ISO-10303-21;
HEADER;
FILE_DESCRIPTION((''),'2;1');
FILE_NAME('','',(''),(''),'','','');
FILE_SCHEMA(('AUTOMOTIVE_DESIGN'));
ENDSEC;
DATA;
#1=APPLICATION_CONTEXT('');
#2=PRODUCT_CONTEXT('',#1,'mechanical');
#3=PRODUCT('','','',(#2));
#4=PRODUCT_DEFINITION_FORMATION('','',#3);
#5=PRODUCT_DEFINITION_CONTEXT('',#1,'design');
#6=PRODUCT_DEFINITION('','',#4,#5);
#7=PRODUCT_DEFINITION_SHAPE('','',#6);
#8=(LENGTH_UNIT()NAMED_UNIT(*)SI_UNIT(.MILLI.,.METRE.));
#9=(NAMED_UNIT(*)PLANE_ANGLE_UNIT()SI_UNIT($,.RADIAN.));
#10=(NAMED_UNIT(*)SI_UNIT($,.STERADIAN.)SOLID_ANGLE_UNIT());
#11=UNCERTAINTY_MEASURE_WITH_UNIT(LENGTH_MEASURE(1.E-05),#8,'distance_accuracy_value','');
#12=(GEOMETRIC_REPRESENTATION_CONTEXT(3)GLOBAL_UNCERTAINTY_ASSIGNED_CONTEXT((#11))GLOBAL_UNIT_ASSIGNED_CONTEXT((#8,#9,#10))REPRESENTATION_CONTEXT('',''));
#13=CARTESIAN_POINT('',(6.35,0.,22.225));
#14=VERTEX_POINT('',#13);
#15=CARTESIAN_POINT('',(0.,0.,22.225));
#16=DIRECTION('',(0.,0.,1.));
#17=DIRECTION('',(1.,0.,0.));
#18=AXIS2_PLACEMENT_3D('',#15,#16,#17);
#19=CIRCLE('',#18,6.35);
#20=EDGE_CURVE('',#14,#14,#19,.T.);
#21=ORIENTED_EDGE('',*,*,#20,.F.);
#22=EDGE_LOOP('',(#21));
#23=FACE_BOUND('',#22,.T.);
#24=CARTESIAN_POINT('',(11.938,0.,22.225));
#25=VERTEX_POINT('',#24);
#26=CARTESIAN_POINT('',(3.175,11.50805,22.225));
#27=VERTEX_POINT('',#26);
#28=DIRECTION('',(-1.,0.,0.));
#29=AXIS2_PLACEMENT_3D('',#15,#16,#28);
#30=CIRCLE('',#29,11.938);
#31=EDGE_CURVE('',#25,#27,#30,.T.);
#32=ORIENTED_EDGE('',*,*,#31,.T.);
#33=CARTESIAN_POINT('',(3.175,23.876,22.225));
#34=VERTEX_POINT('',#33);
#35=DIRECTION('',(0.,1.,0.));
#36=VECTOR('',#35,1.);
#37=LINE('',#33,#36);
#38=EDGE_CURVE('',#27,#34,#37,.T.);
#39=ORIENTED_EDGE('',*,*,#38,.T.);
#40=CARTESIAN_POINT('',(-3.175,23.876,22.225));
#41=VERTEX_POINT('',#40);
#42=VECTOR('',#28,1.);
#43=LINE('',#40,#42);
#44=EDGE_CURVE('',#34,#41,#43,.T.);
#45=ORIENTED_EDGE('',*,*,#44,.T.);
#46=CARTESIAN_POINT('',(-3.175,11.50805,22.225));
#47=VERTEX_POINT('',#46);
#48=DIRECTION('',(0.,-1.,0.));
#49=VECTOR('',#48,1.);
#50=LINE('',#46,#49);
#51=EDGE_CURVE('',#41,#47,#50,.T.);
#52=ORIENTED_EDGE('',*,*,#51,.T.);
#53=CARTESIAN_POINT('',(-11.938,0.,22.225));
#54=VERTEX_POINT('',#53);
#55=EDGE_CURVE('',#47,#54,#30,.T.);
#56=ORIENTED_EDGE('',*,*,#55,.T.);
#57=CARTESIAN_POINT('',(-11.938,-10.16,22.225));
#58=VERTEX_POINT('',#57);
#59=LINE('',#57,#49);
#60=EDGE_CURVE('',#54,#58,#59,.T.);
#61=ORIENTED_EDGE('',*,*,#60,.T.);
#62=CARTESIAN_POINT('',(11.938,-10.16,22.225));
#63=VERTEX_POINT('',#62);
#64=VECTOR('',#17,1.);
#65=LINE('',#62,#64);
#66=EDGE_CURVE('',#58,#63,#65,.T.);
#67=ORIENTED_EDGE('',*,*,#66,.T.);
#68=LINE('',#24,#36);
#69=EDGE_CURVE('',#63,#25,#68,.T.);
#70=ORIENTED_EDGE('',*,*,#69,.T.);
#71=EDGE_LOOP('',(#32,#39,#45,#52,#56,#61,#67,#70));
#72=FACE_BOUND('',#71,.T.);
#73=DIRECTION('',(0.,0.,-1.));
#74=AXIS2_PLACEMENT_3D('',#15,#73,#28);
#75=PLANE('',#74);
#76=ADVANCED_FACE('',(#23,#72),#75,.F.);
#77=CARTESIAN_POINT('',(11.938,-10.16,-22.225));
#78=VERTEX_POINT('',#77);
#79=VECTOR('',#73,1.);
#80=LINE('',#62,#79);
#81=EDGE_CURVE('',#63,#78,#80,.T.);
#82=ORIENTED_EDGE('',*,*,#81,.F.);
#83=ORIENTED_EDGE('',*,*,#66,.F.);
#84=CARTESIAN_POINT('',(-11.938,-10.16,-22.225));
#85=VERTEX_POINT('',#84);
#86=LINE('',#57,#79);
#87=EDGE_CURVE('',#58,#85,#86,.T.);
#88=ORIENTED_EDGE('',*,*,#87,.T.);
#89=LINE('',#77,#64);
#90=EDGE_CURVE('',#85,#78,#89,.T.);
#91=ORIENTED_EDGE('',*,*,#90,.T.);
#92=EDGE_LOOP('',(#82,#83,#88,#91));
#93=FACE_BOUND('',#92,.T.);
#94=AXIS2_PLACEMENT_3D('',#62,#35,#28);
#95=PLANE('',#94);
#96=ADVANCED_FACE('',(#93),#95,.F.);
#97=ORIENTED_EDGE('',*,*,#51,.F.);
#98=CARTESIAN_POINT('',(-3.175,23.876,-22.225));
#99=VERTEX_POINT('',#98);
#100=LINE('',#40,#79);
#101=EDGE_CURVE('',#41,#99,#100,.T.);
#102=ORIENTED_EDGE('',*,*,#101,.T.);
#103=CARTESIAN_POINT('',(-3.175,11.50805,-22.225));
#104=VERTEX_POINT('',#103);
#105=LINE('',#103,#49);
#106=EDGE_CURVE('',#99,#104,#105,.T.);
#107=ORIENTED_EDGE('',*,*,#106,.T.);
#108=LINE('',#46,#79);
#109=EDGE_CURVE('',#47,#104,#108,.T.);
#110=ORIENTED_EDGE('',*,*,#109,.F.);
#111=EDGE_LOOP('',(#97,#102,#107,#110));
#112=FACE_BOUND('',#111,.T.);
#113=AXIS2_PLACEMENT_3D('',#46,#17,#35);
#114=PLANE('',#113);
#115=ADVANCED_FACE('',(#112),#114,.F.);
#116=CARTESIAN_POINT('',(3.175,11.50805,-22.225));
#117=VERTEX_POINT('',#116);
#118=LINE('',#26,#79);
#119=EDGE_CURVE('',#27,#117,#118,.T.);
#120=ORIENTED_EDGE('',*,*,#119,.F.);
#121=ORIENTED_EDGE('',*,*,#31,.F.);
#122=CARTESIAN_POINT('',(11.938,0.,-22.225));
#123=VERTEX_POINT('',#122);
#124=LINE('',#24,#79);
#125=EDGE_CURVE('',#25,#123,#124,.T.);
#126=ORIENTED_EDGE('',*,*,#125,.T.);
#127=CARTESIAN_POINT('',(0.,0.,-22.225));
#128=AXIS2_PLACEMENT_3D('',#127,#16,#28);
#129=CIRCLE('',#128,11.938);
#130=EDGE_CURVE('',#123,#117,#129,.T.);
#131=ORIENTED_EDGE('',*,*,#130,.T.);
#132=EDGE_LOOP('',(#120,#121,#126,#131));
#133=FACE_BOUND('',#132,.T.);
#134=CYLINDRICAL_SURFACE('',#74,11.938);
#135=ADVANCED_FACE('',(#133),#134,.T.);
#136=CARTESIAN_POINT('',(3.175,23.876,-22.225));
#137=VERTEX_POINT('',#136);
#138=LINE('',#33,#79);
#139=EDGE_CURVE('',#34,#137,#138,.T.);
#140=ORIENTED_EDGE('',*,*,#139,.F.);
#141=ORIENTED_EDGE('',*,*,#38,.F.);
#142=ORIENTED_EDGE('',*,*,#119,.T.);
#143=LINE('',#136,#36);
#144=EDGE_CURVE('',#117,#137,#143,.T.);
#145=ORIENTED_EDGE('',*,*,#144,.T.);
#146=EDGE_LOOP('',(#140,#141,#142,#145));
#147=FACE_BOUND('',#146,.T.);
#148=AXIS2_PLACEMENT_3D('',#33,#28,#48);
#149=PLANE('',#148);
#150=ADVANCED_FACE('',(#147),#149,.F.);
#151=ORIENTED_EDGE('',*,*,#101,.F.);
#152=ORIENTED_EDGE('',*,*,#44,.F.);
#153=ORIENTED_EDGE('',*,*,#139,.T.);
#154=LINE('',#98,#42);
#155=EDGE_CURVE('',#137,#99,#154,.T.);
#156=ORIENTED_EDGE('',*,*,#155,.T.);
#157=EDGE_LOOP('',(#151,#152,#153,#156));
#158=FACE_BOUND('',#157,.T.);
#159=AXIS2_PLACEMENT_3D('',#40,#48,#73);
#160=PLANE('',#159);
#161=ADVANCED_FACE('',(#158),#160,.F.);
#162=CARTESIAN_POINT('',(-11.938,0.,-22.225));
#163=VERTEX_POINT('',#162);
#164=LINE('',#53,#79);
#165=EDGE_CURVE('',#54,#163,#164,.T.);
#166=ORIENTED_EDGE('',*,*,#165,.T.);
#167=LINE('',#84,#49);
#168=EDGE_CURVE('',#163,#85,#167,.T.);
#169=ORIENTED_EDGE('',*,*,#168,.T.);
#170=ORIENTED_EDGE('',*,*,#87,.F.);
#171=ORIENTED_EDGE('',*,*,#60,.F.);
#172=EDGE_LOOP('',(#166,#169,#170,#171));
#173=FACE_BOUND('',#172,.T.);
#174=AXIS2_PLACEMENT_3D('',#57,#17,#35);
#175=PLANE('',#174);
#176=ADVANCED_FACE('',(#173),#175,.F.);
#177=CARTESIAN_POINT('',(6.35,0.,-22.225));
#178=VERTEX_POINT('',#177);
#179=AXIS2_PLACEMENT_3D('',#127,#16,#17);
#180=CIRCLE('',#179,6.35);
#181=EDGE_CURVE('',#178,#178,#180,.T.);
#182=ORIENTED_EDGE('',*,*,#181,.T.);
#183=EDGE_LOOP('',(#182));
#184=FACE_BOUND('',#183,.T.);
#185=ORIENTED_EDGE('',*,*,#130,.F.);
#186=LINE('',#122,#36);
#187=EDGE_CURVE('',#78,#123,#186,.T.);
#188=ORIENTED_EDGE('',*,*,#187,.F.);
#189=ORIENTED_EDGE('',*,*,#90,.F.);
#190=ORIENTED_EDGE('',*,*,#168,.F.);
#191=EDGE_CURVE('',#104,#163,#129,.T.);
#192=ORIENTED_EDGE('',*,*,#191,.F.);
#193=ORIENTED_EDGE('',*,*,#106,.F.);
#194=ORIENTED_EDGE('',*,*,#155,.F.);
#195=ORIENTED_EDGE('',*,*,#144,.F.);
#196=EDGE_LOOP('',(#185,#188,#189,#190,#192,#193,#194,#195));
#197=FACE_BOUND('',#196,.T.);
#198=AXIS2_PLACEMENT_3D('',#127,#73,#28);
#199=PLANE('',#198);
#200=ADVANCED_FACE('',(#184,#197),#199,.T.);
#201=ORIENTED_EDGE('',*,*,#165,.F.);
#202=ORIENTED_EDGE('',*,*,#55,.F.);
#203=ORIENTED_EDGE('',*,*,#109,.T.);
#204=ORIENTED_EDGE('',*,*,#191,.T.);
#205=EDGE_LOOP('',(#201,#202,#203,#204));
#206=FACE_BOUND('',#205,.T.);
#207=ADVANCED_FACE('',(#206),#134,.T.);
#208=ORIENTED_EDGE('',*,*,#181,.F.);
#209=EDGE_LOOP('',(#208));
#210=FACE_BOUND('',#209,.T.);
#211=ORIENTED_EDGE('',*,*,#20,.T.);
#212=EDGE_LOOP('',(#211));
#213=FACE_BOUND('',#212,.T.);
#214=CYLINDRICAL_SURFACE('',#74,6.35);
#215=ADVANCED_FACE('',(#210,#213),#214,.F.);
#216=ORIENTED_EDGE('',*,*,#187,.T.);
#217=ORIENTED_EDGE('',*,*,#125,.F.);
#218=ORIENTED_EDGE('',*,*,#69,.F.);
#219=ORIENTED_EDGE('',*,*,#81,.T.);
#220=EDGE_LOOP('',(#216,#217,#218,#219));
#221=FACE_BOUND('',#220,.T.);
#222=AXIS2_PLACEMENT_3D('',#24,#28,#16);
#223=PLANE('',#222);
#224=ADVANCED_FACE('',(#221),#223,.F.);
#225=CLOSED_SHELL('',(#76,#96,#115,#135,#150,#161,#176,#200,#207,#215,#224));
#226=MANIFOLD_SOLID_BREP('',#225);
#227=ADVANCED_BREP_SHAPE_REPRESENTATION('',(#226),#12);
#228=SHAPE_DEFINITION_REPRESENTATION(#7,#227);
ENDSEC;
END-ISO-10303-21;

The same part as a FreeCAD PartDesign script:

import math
import FreeCAD as App
import Part
import Sketcher

V = App.Vector
Q = App.Units.Quantity

doc = App.newDocument("Part")
params = doc.addObject("Spreadsheet::Sheet", "Params")
for row, (alias, value) in enumerate([
    ("sketch1_diameter", "0.5 in"),
    ("sketch1_radius", "0.47 in"),
    ("sketch1_height", "0.4 in"),
    ("sketch1_width", "0.25 in"),
    ("pad1_length", "1.75 in"),
], start=1):
    params.set(f"A{row}", alias)
    params.set(f"B{row}", "=" + value)
    params.setAlias(f"B{row}", alias)

body = doc.addObject("PartDesign::Body", "Body")

# Sketch on XY plane
sketch1 = doc.addObject("Sketcher::SketchObject", "Sketch")
body.addObject(sketch1)
sketch1.AttachmentSupport = (doc.XY_Plane, [""])
sketch1.MapMode = "FlatFace"
sketch1.addGeometry([
    Part.LineSegment(V(-12, -10, 0), V(12, -10, 0)),  # 0
    Part.LineSegment(V(12, -10, 0), V(12, 0, 0)),  # 1
    Part.ArcOfCircle(Part.Circle(V(0, 0, 0), V(0, 0, 1), 12), math.radians(0), math.radians(75)),  # 2
    Part.LineSegment(V(3, 12, 0), V(3, 24, 0)),  # 3
    Part.LineSegment(V(3, 24, 0), V(-3, 24, 0)),  # 4
    Part.LineSegment(V(-3, 24, 0), V(-3, 12, 0)),  # 5
    Part.ArcOfCircle(Part.Circle(V(0, 0, 0), V(0, 0, 1), 12), math.radians(105), math.radians(180)),  # 6
    Part.LineSegment(V(-12, 0, 0), V(-12, -10, 0)),  # 7
    Part.Circle(V(0, 0, 0), V(0, 0, 1), 6),  # 8
], False)
sketch1.addConstraint([
    Sketcher.Constraint("Coincident", 0, 2, 1, 1),
    Sketcher.Constraint("Tangent", 1, 2, 2, 1),
    Sketcher.Constraint("Coincident", 2, 2, 3, 1),
    Sketcher.Constraint("Coincident", 3, 2, 4, 1),
    Sketcher.Constraint("Coincident", 4, 2, 5, 1),
    Sketcher.Constraint("Coincident", 5, 2, 6, 1),
    Sketcher.Constraint("Tangent", 6, 2, 7, 1),
    Sketcher.Constraint("Coincident", 7, 2, 0, 1),
    Sketcher.Constraint("Horizontal", 0),
    Sketcher.Constraint("Vertical", 1),
    Sketcher.Constraint("Vertical", 3),
    Sketcher.Constraint("Horizontal", 4),
    Sketcher.Constraint("Vertical", 5),
    Sketcher.Constraint("Vertical", 7),
    Sketcher.Constraint("Coincident", 2, 3, -1, 1),
    Sketcher.Constraint("Coincident", 6, 3, -1, 1),
    Sketcher.Constraint("Coincident", 8, 3, -1, 1),
    Sketcher.Constraint("Equal", 2, 6),
    Sketcher.Constraint("Horizontal", 2, 2, 5, 2),
    Sketcher.Constraint("Diameter", 8, Q("0.5 in")),
    Sketcher.Constraint("Radius", 2, Q("0.47 in")),
    Sketcher.Constraint("DistanceY", 1, 1, 1, 2, Q("0.4 in")),
    Sketcher.Constraint("DistanceX", 4, 2, 4, 1, Q("0.25 in")),
    Sketcher.Constraint("DistanceY", -1, 1, 3, 2, Q("0.94 in")),
])
sketch1.setExpression("Constraints[19]", "Params.sketch1_diameter")
sketch1.setExpression("Constraints[20]", "Params.sketch1_radius")
sketch1.setExpression("Constraints[21]", "Params.sketch1_height")
sketch1.setExpression("Constraints[22]", "Params.sketch1_width")
pad1 = doc.addObject("PartDesign::Pad", "Pad")
body.addObject(pad1)
pad1.Profile = sketch1
pad1.setExpression("Length", "Params.pad1_length")
pad1.Midplane = True

doc.recompute()
